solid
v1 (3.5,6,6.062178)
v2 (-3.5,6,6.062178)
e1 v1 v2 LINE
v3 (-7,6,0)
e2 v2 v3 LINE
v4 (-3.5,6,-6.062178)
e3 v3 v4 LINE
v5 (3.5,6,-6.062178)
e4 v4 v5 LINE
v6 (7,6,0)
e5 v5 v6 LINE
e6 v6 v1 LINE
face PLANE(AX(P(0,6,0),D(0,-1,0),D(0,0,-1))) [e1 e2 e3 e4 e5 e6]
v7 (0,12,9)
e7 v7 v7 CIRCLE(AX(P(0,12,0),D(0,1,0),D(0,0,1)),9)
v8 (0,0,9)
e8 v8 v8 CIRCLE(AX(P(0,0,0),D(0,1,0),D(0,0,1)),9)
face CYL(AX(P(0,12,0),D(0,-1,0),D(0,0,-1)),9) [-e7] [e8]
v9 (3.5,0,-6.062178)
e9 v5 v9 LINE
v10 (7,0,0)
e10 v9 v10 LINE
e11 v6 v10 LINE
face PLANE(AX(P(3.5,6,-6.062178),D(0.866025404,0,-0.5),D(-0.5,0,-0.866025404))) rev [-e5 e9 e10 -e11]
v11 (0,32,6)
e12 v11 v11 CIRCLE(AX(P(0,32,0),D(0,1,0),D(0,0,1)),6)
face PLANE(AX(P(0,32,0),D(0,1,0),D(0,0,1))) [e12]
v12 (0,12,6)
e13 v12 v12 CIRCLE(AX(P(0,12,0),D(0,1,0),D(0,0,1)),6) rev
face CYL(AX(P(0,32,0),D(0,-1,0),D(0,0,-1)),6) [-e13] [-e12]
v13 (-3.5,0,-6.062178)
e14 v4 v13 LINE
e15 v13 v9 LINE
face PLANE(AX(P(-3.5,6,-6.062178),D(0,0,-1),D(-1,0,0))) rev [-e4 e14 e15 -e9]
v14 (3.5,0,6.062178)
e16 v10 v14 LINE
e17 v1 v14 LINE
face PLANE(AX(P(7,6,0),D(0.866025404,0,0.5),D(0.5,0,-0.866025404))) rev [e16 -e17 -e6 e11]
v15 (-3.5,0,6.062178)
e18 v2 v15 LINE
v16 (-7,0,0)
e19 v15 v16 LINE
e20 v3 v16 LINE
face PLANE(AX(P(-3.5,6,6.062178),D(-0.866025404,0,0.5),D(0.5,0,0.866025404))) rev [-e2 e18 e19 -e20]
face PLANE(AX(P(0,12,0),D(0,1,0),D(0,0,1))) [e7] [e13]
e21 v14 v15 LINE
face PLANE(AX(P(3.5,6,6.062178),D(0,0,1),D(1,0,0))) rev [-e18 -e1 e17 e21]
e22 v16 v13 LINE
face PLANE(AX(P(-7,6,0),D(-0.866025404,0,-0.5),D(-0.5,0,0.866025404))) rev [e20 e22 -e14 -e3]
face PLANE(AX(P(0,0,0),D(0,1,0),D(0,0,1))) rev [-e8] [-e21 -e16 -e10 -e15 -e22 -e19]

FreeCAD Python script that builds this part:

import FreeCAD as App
import Part
import Sketcher
from FreeCAD import Vector
Q = App.Units.Quantity


def add_polygon(sketch, points):
    """Adds a closed chain of lines whose ends are joined by coincident constraints."""
    first, n = sketch.GeometryCount, len(points)
    for a, b in zip(points, points[1:] + points[:1]):
        sketch.addGeometry(Part.LineSegment(App.Vector(*a, 0), App.Vector(*b, 0)), False)
    for i in range(n):
        sketch.addConstraint(Sketcher.Constraint("Coincident", first + i, 2, first + (i + 1) % n, 1))

doc = App.newDocument("Part")
body = doc.addObject("PartDesign::Body", "Body")

sketch1 = doc.addObject("Sketcher::SketchObject", "Sketch")
body.addObject(sketch1)
sketch1.AttachmentSupport = (doc.XZ_Plane, [""])
sketch1.MapMode = "FlatFace"
sketch1.addGeometry(Part.Circle(Vector(0, 0, 0), Vector(0, 0, 1), 9), False)
sketch1.addConstraint(Sketcher.Constraint("Coincident", 0, 3, -1, 1))
sketch1.addConstraint(Sketcher.Constraint("Diameter", 0, Q("18 mm")))
pad1 = doc.addObject("PartDesign::Pad", "Pad")
body.addObject(pad1)
pad1.Profile = sketch1
pad1.Length = 12
pad1.Reversed = True

sketch2 = doc.addObject("Sketcher::SketchObject", "Sketch001")
body.addObject(sketch2)
sketch2.AttachmentSupport = (doc.XZ_Plane, [""])
sketch2.MapMode = "FlatFace"
sketch2.addGeometry(Part.Circle(Vector(0, 0, 0), Vector(0, 0, 1), 6), False)
sketch2.addConstraint(Sketcher.Constraint("Coincident", 0, 3, -1, 1))
sketch2.addConstraint(Sketcher.Constraint("Diameter", 0, Q("12 mm")))
pad2 = doc.addObject("PartDesign::Pad", "Pad001")
body.addObject(pad2)
pad2.Profile = sketch2
pad2.Length = 32
pad2.Reversed = True

sketch3 = doc.addObject("Sketcher::SketchObject", "Sketch002")
body.addObject(sketch3)
sketch3.AttachmentSupport = (doc.XZ_Plane, [""])
sketch3.MapMode = "FlatFace"
add_polygon(sketch3, [(-4, -6), (4, -6), (7, 0), (4, 6), (-4, 6), (-7, 0)])
sketch3.addConstraint(Sketcher.Constraint("Horizontal", 0))
sketch3.addConstraint(Sketcher.Constraint("Horizontal", 3))
sketch3.addConstraint(Sketcher.Constraint("Symmetric", 0, 2, 3, 2, -1, 1))
sketch3.addConstraint(Sketcher.Constraint("Symmetric", 1, 2, 4, 2, -1, 1))
sketch3.addConstraint(Sketcher.Constraint("PointOnObject", 1, 2, -1))
sketch3.addConstraint(Sketcher.Constraint("Parallel", 2, 5))
sketch3.addConstraint(Sketcher.Constraint("Vertical", 0, 2, 2, 2))
sketch3.addConstraint(Sketcher.Constraint("DistanceX", 0, 1, 0, 2, Q("7 mm")))
sketch3.addConstraint(Sketcher.Constraint("Angle", 1, Q("60 deg")))
sketch3.addConstraint(Sketcher.Constraint("Distance", 1, Q("7 mm")))
pocket1 = doc.addObject("PartDesign::Pocket", "Pocket")
body.addObject(pocket1)
pocket1.Profile = sketch3
pocket1.Length = 6

doc.recompute()
